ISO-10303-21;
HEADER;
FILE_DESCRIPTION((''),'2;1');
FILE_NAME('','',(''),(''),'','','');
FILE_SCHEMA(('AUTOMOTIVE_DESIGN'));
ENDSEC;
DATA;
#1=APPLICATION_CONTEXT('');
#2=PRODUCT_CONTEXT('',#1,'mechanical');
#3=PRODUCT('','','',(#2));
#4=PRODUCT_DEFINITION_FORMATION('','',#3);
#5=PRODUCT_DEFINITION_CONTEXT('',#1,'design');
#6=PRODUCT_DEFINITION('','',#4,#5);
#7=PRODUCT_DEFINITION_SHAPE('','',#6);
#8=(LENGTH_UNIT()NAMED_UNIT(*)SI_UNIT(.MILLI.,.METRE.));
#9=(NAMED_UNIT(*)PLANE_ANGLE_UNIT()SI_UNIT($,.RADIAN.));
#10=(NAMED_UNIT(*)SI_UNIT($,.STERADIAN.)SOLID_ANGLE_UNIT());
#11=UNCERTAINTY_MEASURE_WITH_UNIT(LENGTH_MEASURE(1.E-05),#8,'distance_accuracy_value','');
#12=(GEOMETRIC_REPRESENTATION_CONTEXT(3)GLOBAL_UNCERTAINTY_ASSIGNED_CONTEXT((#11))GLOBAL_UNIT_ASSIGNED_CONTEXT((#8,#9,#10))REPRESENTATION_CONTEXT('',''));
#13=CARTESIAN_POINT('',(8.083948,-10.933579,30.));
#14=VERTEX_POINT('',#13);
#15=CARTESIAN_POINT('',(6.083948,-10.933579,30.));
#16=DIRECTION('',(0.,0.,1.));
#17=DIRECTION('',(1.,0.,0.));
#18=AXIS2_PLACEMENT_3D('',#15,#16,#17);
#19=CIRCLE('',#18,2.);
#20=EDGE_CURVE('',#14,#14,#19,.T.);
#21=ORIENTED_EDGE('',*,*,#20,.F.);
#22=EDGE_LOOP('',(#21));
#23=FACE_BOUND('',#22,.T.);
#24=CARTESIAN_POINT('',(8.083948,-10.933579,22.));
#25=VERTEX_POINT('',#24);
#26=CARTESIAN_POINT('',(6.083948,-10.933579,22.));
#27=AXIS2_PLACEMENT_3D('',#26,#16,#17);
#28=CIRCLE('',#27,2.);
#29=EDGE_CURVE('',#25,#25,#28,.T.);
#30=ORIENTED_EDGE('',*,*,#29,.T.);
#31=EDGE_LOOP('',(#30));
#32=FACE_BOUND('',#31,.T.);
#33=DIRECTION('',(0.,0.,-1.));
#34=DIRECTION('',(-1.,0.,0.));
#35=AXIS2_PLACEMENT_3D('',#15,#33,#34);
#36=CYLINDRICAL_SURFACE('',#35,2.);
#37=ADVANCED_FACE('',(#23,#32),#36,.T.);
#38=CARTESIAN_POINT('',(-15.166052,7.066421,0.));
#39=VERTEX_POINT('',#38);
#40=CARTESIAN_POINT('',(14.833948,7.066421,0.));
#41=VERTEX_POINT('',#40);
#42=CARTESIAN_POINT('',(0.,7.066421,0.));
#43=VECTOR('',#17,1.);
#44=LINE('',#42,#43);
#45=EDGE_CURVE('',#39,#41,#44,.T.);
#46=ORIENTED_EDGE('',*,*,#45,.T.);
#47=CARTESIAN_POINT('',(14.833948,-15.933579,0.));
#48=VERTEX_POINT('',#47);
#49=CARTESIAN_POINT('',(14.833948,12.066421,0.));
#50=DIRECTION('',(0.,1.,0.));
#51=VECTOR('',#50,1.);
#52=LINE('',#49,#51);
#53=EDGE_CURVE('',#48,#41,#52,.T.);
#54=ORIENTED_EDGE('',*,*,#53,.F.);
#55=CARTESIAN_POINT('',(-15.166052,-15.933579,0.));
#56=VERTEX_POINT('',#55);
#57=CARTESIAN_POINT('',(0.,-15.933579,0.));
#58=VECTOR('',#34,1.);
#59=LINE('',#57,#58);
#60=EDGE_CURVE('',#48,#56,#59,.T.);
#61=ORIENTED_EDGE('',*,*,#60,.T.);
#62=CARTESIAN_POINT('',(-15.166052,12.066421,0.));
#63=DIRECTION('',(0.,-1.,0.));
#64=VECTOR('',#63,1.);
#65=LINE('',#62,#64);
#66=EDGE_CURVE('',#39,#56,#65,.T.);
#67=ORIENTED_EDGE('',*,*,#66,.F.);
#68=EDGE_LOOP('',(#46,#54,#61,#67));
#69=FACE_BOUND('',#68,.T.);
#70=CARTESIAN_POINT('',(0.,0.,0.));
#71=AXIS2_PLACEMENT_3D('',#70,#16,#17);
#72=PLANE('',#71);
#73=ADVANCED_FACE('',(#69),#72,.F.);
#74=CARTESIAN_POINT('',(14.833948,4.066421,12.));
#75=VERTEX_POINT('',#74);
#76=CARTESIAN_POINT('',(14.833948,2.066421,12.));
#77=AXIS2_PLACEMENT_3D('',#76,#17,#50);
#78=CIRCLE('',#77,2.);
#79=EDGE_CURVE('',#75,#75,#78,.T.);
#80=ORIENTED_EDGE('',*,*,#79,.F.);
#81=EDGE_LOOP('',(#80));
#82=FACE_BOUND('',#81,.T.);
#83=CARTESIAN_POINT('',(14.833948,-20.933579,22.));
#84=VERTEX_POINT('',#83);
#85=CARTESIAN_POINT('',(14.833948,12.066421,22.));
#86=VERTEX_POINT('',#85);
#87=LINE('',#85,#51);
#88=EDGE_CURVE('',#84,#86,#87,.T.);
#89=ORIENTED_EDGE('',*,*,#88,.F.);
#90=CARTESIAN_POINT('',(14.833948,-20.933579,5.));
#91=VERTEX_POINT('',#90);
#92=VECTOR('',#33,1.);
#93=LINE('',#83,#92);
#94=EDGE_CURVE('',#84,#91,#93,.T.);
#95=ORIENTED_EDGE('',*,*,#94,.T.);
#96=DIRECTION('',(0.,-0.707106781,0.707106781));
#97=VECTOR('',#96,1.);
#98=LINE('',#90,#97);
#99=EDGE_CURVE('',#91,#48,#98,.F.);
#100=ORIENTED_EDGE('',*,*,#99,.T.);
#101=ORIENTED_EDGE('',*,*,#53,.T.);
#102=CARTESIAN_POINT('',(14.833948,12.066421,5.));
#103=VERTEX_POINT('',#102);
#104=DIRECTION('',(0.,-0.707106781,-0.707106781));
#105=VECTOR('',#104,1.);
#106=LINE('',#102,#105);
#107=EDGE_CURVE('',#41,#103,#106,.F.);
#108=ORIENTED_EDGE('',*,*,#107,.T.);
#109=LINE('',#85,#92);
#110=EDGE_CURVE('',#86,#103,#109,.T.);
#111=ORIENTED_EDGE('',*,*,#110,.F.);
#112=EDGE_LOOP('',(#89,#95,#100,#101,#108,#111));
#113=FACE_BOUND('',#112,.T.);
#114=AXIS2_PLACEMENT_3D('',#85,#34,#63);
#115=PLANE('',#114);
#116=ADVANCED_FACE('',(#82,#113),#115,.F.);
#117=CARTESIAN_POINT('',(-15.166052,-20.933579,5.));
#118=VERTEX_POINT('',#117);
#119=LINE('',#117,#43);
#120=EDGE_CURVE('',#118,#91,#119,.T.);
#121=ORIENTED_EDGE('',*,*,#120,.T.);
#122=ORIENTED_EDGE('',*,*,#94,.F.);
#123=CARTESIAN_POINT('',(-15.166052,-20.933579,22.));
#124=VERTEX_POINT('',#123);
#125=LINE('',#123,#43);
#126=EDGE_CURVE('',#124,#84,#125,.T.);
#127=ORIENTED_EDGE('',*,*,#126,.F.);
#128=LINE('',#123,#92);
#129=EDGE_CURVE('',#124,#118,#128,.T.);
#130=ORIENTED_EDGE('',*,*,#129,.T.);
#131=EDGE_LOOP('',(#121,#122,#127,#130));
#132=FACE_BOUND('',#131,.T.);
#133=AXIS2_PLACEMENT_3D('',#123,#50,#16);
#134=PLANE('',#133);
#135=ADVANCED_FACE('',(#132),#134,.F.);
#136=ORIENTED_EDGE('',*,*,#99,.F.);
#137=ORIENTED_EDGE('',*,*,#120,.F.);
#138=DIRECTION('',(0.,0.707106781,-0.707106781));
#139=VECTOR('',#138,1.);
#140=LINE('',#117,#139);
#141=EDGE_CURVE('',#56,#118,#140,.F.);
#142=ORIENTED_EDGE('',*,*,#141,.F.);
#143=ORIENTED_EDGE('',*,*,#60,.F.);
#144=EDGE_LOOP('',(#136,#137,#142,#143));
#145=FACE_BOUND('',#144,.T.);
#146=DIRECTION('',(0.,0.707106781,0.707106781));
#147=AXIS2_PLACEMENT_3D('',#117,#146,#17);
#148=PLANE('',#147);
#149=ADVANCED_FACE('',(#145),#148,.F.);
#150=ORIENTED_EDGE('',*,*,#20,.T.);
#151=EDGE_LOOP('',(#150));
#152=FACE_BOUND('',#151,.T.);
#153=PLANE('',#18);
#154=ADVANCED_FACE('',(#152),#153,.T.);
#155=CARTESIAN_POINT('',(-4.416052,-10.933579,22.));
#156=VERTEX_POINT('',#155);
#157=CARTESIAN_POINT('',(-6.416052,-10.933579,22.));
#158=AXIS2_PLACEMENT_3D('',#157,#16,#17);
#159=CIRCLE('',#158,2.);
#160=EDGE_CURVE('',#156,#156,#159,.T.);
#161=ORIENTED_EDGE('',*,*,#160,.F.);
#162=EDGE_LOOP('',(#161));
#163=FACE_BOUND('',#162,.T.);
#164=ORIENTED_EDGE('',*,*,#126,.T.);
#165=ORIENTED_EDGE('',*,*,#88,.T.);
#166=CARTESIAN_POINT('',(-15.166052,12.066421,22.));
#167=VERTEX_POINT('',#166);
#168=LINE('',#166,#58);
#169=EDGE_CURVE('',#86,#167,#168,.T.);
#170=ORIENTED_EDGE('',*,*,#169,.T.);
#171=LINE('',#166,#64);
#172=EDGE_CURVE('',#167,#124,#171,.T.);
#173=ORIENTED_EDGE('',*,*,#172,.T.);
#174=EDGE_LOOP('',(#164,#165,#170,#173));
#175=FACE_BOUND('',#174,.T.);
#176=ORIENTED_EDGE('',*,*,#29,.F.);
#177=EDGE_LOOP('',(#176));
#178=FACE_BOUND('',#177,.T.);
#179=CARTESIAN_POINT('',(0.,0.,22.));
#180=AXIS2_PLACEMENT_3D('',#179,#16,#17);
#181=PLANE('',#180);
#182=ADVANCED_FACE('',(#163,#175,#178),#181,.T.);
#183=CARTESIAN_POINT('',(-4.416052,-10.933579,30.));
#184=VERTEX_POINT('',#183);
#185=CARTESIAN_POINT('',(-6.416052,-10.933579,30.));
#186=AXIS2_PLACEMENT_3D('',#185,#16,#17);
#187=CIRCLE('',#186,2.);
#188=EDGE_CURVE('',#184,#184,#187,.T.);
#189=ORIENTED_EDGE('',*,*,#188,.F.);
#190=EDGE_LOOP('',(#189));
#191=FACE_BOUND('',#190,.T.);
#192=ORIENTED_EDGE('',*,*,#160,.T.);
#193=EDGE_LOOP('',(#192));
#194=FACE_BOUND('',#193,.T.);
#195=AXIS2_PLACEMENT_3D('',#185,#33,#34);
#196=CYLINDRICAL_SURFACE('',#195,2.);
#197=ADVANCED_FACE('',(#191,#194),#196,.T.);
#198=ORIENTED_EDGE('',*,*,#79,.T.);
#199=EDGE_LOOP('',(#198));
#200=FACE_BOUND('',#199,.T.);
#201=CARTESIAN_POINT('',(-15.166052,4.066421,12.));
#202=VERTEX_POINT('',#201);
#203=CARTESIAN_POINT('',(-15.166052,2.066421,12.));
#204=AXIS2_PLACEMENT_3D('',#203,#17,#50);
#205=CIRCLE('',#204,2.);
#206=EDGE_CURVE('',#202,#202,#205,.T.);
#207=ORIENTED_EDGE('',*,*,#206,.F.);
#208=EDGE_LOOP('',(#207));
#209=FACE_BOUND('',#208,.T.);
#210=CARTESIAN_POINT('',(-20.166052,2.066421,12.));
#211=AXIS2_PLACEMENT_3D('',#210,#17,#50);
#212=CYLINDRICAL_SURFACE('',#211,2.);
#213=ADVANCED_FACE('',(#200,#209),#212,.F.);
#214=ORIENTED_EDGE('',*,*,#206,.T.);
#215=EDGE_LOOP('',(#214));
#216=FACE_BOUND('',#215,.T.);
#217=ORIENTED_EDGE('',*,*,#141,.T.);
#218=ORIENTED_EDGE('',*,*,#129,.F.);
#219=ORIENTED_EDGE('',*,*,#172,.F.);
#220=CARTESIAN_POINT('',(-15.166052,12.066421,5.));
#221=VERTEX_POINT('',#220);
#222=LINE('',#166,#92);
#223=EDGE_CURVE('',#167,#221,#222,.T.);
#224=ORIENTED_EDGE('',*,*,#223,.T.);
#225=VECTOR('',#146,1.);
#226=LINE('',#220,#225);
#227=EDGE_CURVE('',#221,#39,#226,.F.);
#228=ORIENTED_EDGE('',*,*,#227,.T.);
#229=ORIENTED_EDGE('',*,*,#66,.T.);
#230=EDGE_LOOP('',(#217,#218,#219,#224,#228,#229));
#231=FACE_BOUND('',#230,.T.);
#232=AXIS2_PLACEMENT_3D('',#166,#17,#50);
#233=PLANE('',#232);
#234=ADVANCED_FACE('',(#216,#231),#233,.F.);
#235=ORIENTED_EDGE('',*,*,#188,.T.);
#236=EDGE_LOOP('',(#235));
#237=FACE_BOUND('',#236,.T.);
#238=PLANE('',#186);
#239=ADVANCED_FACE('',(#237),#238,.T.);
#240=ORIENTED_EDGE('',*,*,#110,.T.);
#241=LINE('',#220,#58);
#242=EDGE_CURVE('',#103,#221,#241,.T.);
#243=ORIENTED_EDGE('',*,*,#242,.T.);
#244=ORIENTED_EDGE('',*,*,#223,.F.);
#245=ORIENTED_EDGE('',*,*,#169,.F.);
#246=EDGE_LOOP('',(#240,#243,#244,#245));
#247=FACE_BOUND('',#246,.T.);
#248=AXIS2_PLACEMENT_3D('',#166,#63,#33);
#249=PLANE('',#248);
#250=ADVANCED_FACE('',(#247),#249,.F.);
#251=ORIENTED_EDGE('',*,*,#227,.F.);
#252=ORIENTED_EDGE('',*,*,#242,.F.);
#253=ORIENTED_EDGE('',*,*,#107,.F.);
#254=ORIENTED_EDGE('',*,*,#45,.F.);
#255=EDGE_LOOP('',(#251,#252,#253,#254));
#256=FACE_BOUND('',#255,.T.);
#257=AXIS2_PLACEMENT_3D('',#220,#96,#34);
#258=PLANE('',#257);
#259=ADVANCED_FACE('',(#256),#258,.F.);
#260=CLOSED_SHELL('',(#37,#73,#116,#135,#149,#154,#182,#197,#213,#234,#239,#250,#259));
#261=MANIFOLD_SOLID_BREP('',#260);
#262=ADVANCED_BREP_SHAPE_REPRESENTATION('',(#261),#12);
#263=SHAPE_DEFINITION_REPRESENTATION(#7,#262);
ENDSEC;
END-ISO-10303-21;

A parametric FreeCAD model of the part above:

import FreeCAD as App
import Part
import Sketcher
from FreeCAD import Vector
Q = App.Units.Quantity


def edges_at(feature, points):
    """Names of the edges that pass closest to the given points."""
    edges = feature.Shape.Edges
    near = lambda p: min(range(len(edges)), key=lambda i: edges[i].distToShape(Part.Vertex(*p))[0])
    return sorted({f"Edge{near(p) + 1}" for p in points})


def add_polygon(sketch, points):
    """Adds a closed chain of lines whose ends are joined by coincident constraints."""
    first, n = sketch.GeometryCount, len(points)
    for a, b in zip(points, points[1:] + points[:1]):
        sketch.addGeometry(Part.LineSegment(App.Vector(*a, 0), App.Vector(*b, 0)), False)
    for i in range(n):
        sketch.addConstraint(Sketcher.Constraint("Coincident", first + i, 2, first + (i + 1) % n, 1))

doc = App.newDocument("Part")
body = doc.addObject("PartDesign::Body", "Body")

# Sketch on XY plane
sketch1 = doc.addObject("Sketcher::SketchObject", "Sketch")
body.addObject(sketch1)
sketch1.AttachmentSupport = (doc.XY_Plane, [""])
sketch1.MapMode = "FlatFace"
add_polygon(sketch1, [(-15, 12), (-15, -21), (15, -21), (15, 12)])  # lines 0-3
sketch1.addConstraint([
    Sketcher.Constraint("Vertical", 0),
    Sketcher.Constraint("Horizontal", 1),
    Sketcher.Constraint("Vertical", 2),
    Sketcher.Constraint("Horizontal", 3),
    Sketcher.Constraint("DistanceX", 1, 1, 1, 2, Q("30 mm")),
    Sketcher.Constraint("DistanceY", 0, 2, 0, 1, Q("33 mm")),
    Sketcher.Constraint("DistanceX", 0, 2, -1, 1, Q("15.166052 mm")),
    Sketcher.Constraint("DistanceY", 0, 2, -1, 1, Q("20.933579 mm")),
])
pad1 = doc.addObject("PartDesign::Pad", "Pad")
body.addObject(pad1)
pad1.Profile = sketch1
pad1.Length = 22

# Sketch on XY plane
sketch2 = doc.addObject("Sketcher::SketchObject", "Sketch001")
body.addObject(sketch2)
sketch2.AttachmentSupport = (doc.XY_Plane, [""])
sketch2.MapMode = "FlatFace"
sketch2.AttachmentOffset = App.Placement(Vector(0, 0, 22), App.Rotation())
sketch2.addGeometry([
    Part.Circle(Vector(-6.4, -10.9, 0), Vector(0, 0, 1), 2),
    Part.Circle(Vector(6.1, -10.9, 0), Vector(0, 0, 1), 2),
], False)
sketch2.addConstraint([
    Sketcher.Constraint("Equal", 0, 1),
    Sketcher.Constraint("Horizontal", 0, 3, 1, 3),
    Sketcher.Constraint("Diameter", 0, Q("4 mm")),
    Sketcher.Constraint("DistanceX", 0, 3, 1, 3, Q("12.5 mm")),
    Sketcher.Constraint("DistanceX", 0, 3, -1, 1, Q("6.416052 mm")),
    Sketcher.Constraint("DistanceY", 0, 3, -1, 1, Q("10.933579 mm")),
])
pad2 = doc.addObject("PartDesign::Pad", "Pad001")
body.addObject(pad2)
pad2.Profile = sketch2
pad2.Length = 8
doc.recompute()

chamfer = doc.addObject("PartDesign::Chamfer", "Chamfer")
body.addObject(chamfer)
chamfer.Base = (pad2, edges_at(pad2, [(-0.166, 12.066, 0)]))
chamfer.Size = 5
doc.recompute()

chamfer2 = doc.addObject("PartDesign::Chamfer", "Chamfer001")
body.addObject(chamfer2)
chamfer2.Base = (chamfer, edges_at(chamfer, [(-0.166, -20.934, 0)]))
chamfer2.Size = 5

# Sketch on YZ plane
sketch3 = doc.addObject("Sketcher::SketchObject", "Sketch002")
body.addObject(sketch3)
sketch3.AttachmentSupport = (doc.YZ_Plane, [""])
sketch3.MapMode = "FlatFace"
sketch3.AttachmentOffset = App.Placement(Vector(0, 0, 14.833948), App.Rotation())
sketch3.addGeometry(Part.Circle(Vector(2.1, 12, 0), Vector(0, 0, 1), 2), False)
sketch3.addConstraint([
    Sketcher.Constraint("Diameter", 0, Q("4 mm")),
    Sketcher.Constraint("DistanceY", -1, 1, 0, 3, Q("12 mm")),
    Sketcher.Constraint("DistanceX", -1, 1, 0, 3, Q("2.066421 mm")),
])
pocket1 = doc.addObject("PartDesign::Pocket", "Pocket")
body.addObject(pocket1)
pocket1.Profile = sketch3
pocket1.Length = 35

doc.recompute()
